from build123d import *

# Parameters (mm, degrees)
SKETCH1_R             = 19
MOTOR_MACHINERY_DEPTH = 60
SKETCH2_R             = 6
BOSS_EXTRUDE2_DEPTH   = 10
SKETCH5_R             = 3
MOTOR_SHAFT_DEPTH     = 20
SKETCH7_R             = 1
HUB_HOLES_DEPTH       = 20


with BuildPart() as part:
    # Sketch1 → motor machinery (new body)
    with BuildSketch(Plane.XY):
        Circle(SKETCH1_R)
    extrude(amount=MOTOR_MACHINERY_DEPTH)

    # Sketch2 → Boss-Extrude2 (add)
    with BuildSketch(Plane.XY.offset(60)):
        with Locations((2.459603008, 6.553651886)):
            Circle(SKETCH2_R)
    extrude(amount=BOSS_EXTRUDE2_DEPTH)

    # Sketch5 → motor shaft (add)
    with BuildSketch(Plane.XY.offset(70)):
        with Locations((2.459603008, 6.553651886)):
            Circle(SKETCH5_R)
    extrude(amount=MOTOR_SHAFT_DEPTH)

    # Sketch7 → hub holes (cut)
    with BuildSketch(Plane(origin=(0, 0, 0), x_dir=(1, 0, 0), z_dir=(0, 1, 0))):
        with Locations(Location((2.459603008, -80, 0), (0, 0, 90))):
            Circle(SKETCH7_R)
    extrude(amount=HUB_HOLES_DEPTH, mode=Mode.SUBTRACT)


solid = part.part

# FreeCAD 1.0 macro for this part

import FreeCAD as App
import Part
import Sketcher

doc = App.newDocument("Part")
params = doc.addObject("Spreadsheet::Sheet", "Params")
for row, (alias, value) in enumerate([
    ("sketch1_diameter", "38 mm"),
    ("pad1_length", "60 mm"),
    ("sketch2_diameter", "12 mm"),
    ("pad2_length", "10 mm"),
    ("sketch3_diameter", "6 mm"),
    ("pad3_length", "20 mm"),
    ("sketch4_diameter", "2 mm"),
    ("pocket1_length", "20 mm"),
], start=1):
    params.set(f"A{row}", alias)
    params.set(f"B{row}", "=" + value)
    params.setAlias(f"B{row}", alias)

body = doc.addObject("PartDesign::Body", "Body")

# Sketch on XY plane
sketch1 = body.newObject("Sketcher::SketchObject", "Sketch")
sketch1.AttachmentSupport = (doc.getObject("XY_Plane"), [""])
sketch1.MapMode = "FlatFace"
sketch1.addGeometry(Part.Circle(App.Vector(0, 0, 0), App.Vector(0, 0, 1), 19), False)
sketch1.addConstraint([
    Sketcher.Constraint("Coincident", 0, 3, -1, 1),
    Sketcher.Constraint("Diameter", 0, 38.0),
])
sketch1.setExpression("Constraints[1]", "Params.sketch1_diameter")
pad1 = body.newObject("PartDesign::Pad", "Pad")
pad1.Profile = sketch1
pad1.setExpression("Length", "Params.pad1_length")

# Sketch on XY plane
sketch2 = body.newObject("Sketcher::SketchObject", "Sketch001")
sketch2.AttachmentSupport = (doc.getObject("XY_Plane"), [""])
sketch2.MapMode = "FlatFace"
sketch2.AttachmentOffset = App.Placement(App.Vector(0, 0, 60), App.Rotation())
sketch2.addGeometry(Part.Circle(App.Vector(2.459603, 6.553652, 0), App.Vector(0, 0, 1), 6), False)
sketch2.addConstraint([
    Sketcher.Constraint("Diameter", 0, 12.0),
    Sketcher.Constraint("DistanceY", -1, 1, 0, 3, 6.553652),
    Sketcher.Constraint("DistanceX", -1, 1, 0, 3, 2.459603),
])
sketch2.setExpression("Constraints[0]", "Params.sketch2_diameter")
pad2 = body.newObject("PartDesign::Pad", "Pad001")
pad2.Profile = sketch2
pad2.setExpression("Length", "Params.pad2_length")

# Sketch on XY plane
sketch3 = body.newObject("Sketcher::SketchObject", "Sketch002")
sketch3.AttachmentSupport = (doc.getObject("XY_Plane"), [""])
sketch3.MapMode = "FlatFace"
sketch3.AttachmentOffset = App.Placement(App.Vector(0, 0, 70), App.Rotation())
sketch3.addGeometry(Part.Circle(App.Vector(2.459603, 6.553652, 0), App.Vector(0, 0, 1), 3), False)
sketch3.addConstraint([
    Sketcher.Constraint("Diameter", 0, 6.0),
    Sketcher.Constraint("DistanceY", -1, 1, 0, 3, 6.553652),
    Sketcher.Constraint("DistanceX", -1, 1, 0, 3, 2.459603),
])
sketch3.setExpression("Constraints[0]", "Params.sketch3_diameter")
pad3 = body.newObject("PartDesign::Pad", "Pad002")
pad3.Profile = sketch3
pad3.setExpression("Length", "Params.pad3_length")

# Sketch on XZ plane
sketch4 = body.newObject("Sketcher::SketchObject", "Sketch003")
sketch4.AttachmentSupport = (doc.getObject("XZ_Plane"), [""])
sketch4.MapMode = "FlatFace"
sketch4.addGeometry(Part.Circle(App.Vector(2.459603, 80, 0), App.Vector(0, 0, 1), 1), False)
sketch4.addConstraint([
    Sketcher.Constraint("Diameter", 0, 2.0),
    Sketcher.Constraint("DistanceY", -1, 1, 0, 3, 80.0),
    Sketcher.Constraint("DistanceX", -1, 1, 0, 3, 2.459603),
])
sketch4.setExpression("Constraints[0]", "Params.sketch4_diameter")
pocket1 = body.newObject("PartDesign::Pocket", "Pocket")
pocket1.Profile = sketch4
pocket1.setExpression("Length", "Params.pocket1_length")

doc.recompute()
